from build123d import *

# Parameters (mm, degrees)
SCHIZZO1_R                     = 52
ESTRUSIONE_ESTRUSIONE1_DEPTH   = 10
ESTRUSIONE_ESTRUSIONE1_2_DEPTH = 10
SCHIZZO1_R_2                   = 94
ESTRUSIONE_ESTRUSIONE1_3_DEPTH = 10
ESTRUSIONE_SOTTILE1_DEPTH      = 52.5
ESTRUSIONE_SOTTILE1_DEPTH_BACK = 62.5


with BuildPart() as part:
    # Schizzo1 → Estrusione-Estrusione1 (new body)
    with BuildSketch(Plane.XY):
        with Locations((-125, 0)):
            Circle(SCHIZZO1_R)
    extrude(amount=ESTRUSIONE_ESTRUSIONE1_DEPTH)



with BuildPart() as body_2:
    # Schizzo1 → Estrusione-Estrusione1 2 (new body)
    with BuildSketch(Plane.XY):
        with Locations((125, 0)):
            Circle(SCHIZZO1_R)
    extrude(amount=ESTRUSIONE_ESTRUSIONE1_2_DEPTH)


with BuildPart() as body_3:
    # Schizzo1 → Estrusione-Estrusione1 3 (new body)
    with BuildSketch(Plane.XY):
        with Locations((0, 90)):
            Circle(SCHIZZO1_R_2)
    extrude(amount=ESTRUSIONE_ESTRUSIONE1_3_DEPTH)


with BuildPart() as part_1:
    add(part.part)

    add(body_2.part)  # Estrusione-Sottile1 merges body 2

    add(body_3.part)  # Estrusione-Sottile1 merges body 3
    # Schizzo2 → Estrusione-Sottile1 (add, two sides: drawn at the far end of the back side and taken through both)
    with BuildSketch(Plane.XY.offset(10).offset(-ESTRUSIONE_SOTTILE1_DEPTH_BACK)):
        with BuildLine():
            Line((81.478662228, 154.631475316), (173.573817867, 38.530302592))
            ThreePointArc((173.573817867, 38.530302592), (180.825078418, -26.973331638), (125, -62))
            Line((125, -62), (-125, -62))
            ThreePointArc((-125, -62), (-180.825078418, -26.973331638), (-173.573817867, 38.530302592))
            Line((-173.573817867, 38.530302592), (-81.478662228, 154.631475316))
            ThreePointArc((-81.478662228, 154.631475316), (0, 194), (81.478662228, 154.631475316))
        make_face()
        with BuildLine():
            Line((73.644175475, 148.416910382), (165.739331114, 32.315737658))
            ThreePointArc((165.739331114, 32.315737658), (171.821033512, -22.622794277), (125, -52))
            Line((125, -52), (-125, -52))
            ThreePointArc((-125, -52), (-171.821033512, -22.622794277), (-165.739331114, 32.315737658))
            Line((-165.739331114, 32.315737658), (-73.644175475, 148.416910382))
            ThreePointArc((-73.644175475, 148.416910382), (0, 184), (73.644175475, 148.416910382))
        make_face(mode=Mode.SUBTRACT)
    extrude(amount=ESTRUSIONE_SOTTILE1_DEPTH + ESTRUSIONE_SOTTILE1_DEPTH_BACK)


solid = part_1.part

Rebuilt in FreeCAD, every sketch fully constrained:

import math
import FreeCAD as App
import Part
import Sketcher
from FreeCAD import Vector

doc = App.newDocument("Part")
params = doc.addObject("Spreadsheet::Sheet", "Params")
for row, (alias, value) in enumerate([
    ("sketch1_diameter", "104 mm"),
    ("pad1_length", "10 mm"),
    ("sketch2_diameter", "104 mm"),
    ("pad2_length", "10 mm"),
    ("sketch3_diameter", "188 mm"),
    ("pad3_length", "10 mm"),
    ("sketch4_radius", "104 mm"),
    ("sketch4_radius2", "62 mm"),
    ("sketch4_radius3", "52 mm"),
    ("sketch4_width", "250 mm"),
    ("pad4_length", "52.5 mm"),
    ("pad4_length2", "62.5 mm"),
], start=1):
    params.set(f"A{row}", alias)
    params.set(f"B{row}", "=" + value)
    params.setAlias(f"B{row}", alias)

body = doc.addObject("PartDesign::Body", "Body")

sketch1 = body.newObject("Sketcher::SketchObject", "Sketch")
sketch1.AttachmentSupport = (doc.getObject("XY_Plane"), [""])
sketch1.MapMode = "FlatFace"
sketch1.addGeometry(Part.Circle(Vector(-125, 0, 0), Vector(0, 0, 1), 52), False)
sketch1.addConstraint([
    Sketcher.Constraint("PointOnObject", 0, 3, -1),
    Sketcher.Constraint("Diameter", 0, 104.0),
    Sketcher.Constraint("DistanceX", 0, 3, -1, 1, 125.0),
])
sketch1.setExpression("Constraints[1]", "Params.sketch1_diameter")
pad1 = body.newObject("PartDesign::Pad", "Pad")
pad1.Profile = sketch1
pad1.setExpression("Length", "Params.pad1_length")
body2 = doc.addObject("PartDesign::Body", "Body001")

sketch2 = body2.newObject("Sketcher::SketchObject", "Sketch001")
sketch2.AttachmentSupport = (doc.getObject("XY_Plane001"), [""])
sketch2.MapMode = "FlatFace"
sketch2.addGeometry(Part.Circle(Vector(125, 0, 0), Vector(0, 0, 1), 52), False)
sketch2.addConstraint([
    Sketcher.Constraint("PointOnObject", 0, 3, -1),
    Sketcher.Constraint("Diameter", 0, 104.0),
    Sketcher.Constraint("DistanceX", -1, 1, 0, 3, 125.0),
])
sketch2.setExpression("Constraints[1]", "Params.sketch2_diameter")
pad2 = body2.newObject("PartDesign::Pad", "Pad001")
pad2.Profile = sketch2
pad2.setExpression("Length", "Params.pad2_length")
body3 = doc.addObject("PartDesign::Body", "Body002")

sketch3 = body3.newObject("Sketcher::SketchObject", "Sketch002")
sketch3.AttachmentSupport = (doc.getObject("XY_Plane002"), [""])
sketch3.MapMode = "FlatFace"
sketch3.addGeometry(Part.Circle(Vector(0, 90, 0), Vector(0, 0, 1), 94), False)
sketch3.addConstraint([
    Sketcher.Constraint("PointOnObject", 0, 3, -2),
    Sketcher.Constraint("Diameter", 0, 188.0),
    Sketcher.Constraint("DistanceY", -1, 1, 0, 3, 90.0),
])
sketch3.setExpression("Constraints[1]", "Params.sketch3_diameter")
pad3 = body3.newObject("PartDesign::Pad", "Pad002")
pad3.Profile = sketch3
pad3.setExpression("Length", "Params.pad3_length")
body.AllowCompound = True
doc.recompute()

boolean = body.newObject("PartDesign::Boolean", "Boolean")
boolean.Type = "Fuse"
boolean.addObjects([body2])
doc.recompute()

boolean2 = body.newObject("PartDesign::Boolean", "Boolean001")
boolean2.Type = "Fuse"
boolean2.addObjects([body3])

sketch4 = body.newObject("Sketcher::SketchObject", "Sketch003")
sketch4.AttachmentSupport = (doc.getObject("XY_Plane"), [""])
sketch4.MapMode = "FlatFace"
sketch4.AttachmentOffset = App.Placement(Vector(0, 0, 10), App.Rotation())
sketch4.addGeometry([
    Part.LineSegment(Vector(174, 39, 0), Vector(81, 155, 0)),
    Part.ArcOfCircle(Part.Circle(Vector(0, 90, 0), Vector(0, 0, 1), 104), math.radians(38), math.radians(142)),
    Part.LineSegment(Vector(-81, 155, 0), Vector(-174, 39, 0)),
    Part.ArcOfCircle(Part.Circle(Vector(-125, 0, 0), Vector(0, 0, 1), 62), math.radians(142), math.radians(270)),
    Part.LineSegment(Vector(-125, -62, 0), Vector(125, -62, 0)),
    Part.ArcOfCircle(Part.Circle(Vector(125, 0, 0), Vector(0, 0, 1), 62), math.radians(-90), math.radians(38)),
    Part.LineSegment(Vector(74, 148, 0), Vector(166, 32, 0)),
    Part.ArcOfCircle(Part.Circle(Vector(125, 0, 0), Vector(0, 0, 1), 52), math.radians(-90), math.radians(38)),
    Part.LineSegment(Vector(125, -52, 0), Vector(-125, -52, 0)),
    Part.ArcOfCircle(Part.Circle(Vector(-125, 0, 0), Vector(0, 0, 1), 52), math.radians(142), math.radians(270)),
    Part.LineSegment(Vector(-166, 32, 0), Vector(-74, 148, 0)),
    Part.ArcOfCircle(Part.Circle(Vector(0, 90, 0), Vector(0, 0, 1), 94), math.radians(38), math.radians(142)),
], False)
sketch4.addConstraint([
    Sketcher.Constraint("Tangent", 0, 2, 1, 1),
    Sketcher.Constraint("Tangent", 1, 2, 2, 1),
    Sketcher.Constraint("Tangent", 2, 2, 3, 1),
    Sketcher.Constraint("Tangent", 3, 2, 4, 1),
    Sketcher.Constraint("Tangent", 4, 2, 5, 1),
    Sketcher.Constraint("Tangent", 5, 2, 0, 1),
    Sketcher.Constraint("Tangent", 6, 2, 7, 2),
    Sketcher.Constraint("Tangent", 7, 1, 8, 1),
    Sketcher.Constraint("Tangent", 8, 2, 9, 2),
    Sketcher.Constraint("Tangent", 9, 1, 10, 1),
    Sketcher.Constraint("Tangent", 10, 2, 11, 2),
    Sketcher.Constraint("Tangent", 11, 1, 6, 1),
    Sketcher.Constraint("Horizontal", 4),
    Sketcher.Constraint("Horizontal", 8),
    Sketcher.Constraint("Coincident", 7, 3, 5, 3),
    Sketcher.Constraint("Coincident", 9, 3, 3, 3),
    Sketcher.Constraint("Coincident", 11, 3, 1, 3),
    Sketcher.Constraint("Equal", 3, 5),
    Sketcher.Constraint("Symmetric", 3, 3, 5, 3, -1, 1),
    Sketcher.Constraint("PointOnObject", 1, 3, -2),
    Sketcher.Constraint("Parallel", 0, 6),
    Sketcher.Constraint("Radius", 1, 104.0),
    Sketcher.Constraint("Radius", 3, 62.0),
    Sketcher.Constraint("Radius", 7, 52.0),
    Sketcher.Constraint("DistanceX", 4, 1, 4, 2, 250.0),
    Sketcher.Constraint("DistanceY", -1, 1, 1, 3, 90.0),
])
sketch4.setExpression("Constraints[21]", "Params.sketch4_radius")
sketch4.setExpression("Constraints[22]", "Params.sketch4_radius2")
sketch4.setExpression("Constraints[23]", "Params.sketch4_radius3")
sketch4.setExpression("Constraints[24]", "Params.sketch4_width")
pad4 = body.newObject("PartDesign::Pad", "Pad003")
pad4.Profile = sketch4
pad4.Type = "TwoLengths"
pad4.setExpression("Length", "Params.pad4_length")
pad4.setExpression("Length2", "Params.pad4_length2")

doc.recompute()
